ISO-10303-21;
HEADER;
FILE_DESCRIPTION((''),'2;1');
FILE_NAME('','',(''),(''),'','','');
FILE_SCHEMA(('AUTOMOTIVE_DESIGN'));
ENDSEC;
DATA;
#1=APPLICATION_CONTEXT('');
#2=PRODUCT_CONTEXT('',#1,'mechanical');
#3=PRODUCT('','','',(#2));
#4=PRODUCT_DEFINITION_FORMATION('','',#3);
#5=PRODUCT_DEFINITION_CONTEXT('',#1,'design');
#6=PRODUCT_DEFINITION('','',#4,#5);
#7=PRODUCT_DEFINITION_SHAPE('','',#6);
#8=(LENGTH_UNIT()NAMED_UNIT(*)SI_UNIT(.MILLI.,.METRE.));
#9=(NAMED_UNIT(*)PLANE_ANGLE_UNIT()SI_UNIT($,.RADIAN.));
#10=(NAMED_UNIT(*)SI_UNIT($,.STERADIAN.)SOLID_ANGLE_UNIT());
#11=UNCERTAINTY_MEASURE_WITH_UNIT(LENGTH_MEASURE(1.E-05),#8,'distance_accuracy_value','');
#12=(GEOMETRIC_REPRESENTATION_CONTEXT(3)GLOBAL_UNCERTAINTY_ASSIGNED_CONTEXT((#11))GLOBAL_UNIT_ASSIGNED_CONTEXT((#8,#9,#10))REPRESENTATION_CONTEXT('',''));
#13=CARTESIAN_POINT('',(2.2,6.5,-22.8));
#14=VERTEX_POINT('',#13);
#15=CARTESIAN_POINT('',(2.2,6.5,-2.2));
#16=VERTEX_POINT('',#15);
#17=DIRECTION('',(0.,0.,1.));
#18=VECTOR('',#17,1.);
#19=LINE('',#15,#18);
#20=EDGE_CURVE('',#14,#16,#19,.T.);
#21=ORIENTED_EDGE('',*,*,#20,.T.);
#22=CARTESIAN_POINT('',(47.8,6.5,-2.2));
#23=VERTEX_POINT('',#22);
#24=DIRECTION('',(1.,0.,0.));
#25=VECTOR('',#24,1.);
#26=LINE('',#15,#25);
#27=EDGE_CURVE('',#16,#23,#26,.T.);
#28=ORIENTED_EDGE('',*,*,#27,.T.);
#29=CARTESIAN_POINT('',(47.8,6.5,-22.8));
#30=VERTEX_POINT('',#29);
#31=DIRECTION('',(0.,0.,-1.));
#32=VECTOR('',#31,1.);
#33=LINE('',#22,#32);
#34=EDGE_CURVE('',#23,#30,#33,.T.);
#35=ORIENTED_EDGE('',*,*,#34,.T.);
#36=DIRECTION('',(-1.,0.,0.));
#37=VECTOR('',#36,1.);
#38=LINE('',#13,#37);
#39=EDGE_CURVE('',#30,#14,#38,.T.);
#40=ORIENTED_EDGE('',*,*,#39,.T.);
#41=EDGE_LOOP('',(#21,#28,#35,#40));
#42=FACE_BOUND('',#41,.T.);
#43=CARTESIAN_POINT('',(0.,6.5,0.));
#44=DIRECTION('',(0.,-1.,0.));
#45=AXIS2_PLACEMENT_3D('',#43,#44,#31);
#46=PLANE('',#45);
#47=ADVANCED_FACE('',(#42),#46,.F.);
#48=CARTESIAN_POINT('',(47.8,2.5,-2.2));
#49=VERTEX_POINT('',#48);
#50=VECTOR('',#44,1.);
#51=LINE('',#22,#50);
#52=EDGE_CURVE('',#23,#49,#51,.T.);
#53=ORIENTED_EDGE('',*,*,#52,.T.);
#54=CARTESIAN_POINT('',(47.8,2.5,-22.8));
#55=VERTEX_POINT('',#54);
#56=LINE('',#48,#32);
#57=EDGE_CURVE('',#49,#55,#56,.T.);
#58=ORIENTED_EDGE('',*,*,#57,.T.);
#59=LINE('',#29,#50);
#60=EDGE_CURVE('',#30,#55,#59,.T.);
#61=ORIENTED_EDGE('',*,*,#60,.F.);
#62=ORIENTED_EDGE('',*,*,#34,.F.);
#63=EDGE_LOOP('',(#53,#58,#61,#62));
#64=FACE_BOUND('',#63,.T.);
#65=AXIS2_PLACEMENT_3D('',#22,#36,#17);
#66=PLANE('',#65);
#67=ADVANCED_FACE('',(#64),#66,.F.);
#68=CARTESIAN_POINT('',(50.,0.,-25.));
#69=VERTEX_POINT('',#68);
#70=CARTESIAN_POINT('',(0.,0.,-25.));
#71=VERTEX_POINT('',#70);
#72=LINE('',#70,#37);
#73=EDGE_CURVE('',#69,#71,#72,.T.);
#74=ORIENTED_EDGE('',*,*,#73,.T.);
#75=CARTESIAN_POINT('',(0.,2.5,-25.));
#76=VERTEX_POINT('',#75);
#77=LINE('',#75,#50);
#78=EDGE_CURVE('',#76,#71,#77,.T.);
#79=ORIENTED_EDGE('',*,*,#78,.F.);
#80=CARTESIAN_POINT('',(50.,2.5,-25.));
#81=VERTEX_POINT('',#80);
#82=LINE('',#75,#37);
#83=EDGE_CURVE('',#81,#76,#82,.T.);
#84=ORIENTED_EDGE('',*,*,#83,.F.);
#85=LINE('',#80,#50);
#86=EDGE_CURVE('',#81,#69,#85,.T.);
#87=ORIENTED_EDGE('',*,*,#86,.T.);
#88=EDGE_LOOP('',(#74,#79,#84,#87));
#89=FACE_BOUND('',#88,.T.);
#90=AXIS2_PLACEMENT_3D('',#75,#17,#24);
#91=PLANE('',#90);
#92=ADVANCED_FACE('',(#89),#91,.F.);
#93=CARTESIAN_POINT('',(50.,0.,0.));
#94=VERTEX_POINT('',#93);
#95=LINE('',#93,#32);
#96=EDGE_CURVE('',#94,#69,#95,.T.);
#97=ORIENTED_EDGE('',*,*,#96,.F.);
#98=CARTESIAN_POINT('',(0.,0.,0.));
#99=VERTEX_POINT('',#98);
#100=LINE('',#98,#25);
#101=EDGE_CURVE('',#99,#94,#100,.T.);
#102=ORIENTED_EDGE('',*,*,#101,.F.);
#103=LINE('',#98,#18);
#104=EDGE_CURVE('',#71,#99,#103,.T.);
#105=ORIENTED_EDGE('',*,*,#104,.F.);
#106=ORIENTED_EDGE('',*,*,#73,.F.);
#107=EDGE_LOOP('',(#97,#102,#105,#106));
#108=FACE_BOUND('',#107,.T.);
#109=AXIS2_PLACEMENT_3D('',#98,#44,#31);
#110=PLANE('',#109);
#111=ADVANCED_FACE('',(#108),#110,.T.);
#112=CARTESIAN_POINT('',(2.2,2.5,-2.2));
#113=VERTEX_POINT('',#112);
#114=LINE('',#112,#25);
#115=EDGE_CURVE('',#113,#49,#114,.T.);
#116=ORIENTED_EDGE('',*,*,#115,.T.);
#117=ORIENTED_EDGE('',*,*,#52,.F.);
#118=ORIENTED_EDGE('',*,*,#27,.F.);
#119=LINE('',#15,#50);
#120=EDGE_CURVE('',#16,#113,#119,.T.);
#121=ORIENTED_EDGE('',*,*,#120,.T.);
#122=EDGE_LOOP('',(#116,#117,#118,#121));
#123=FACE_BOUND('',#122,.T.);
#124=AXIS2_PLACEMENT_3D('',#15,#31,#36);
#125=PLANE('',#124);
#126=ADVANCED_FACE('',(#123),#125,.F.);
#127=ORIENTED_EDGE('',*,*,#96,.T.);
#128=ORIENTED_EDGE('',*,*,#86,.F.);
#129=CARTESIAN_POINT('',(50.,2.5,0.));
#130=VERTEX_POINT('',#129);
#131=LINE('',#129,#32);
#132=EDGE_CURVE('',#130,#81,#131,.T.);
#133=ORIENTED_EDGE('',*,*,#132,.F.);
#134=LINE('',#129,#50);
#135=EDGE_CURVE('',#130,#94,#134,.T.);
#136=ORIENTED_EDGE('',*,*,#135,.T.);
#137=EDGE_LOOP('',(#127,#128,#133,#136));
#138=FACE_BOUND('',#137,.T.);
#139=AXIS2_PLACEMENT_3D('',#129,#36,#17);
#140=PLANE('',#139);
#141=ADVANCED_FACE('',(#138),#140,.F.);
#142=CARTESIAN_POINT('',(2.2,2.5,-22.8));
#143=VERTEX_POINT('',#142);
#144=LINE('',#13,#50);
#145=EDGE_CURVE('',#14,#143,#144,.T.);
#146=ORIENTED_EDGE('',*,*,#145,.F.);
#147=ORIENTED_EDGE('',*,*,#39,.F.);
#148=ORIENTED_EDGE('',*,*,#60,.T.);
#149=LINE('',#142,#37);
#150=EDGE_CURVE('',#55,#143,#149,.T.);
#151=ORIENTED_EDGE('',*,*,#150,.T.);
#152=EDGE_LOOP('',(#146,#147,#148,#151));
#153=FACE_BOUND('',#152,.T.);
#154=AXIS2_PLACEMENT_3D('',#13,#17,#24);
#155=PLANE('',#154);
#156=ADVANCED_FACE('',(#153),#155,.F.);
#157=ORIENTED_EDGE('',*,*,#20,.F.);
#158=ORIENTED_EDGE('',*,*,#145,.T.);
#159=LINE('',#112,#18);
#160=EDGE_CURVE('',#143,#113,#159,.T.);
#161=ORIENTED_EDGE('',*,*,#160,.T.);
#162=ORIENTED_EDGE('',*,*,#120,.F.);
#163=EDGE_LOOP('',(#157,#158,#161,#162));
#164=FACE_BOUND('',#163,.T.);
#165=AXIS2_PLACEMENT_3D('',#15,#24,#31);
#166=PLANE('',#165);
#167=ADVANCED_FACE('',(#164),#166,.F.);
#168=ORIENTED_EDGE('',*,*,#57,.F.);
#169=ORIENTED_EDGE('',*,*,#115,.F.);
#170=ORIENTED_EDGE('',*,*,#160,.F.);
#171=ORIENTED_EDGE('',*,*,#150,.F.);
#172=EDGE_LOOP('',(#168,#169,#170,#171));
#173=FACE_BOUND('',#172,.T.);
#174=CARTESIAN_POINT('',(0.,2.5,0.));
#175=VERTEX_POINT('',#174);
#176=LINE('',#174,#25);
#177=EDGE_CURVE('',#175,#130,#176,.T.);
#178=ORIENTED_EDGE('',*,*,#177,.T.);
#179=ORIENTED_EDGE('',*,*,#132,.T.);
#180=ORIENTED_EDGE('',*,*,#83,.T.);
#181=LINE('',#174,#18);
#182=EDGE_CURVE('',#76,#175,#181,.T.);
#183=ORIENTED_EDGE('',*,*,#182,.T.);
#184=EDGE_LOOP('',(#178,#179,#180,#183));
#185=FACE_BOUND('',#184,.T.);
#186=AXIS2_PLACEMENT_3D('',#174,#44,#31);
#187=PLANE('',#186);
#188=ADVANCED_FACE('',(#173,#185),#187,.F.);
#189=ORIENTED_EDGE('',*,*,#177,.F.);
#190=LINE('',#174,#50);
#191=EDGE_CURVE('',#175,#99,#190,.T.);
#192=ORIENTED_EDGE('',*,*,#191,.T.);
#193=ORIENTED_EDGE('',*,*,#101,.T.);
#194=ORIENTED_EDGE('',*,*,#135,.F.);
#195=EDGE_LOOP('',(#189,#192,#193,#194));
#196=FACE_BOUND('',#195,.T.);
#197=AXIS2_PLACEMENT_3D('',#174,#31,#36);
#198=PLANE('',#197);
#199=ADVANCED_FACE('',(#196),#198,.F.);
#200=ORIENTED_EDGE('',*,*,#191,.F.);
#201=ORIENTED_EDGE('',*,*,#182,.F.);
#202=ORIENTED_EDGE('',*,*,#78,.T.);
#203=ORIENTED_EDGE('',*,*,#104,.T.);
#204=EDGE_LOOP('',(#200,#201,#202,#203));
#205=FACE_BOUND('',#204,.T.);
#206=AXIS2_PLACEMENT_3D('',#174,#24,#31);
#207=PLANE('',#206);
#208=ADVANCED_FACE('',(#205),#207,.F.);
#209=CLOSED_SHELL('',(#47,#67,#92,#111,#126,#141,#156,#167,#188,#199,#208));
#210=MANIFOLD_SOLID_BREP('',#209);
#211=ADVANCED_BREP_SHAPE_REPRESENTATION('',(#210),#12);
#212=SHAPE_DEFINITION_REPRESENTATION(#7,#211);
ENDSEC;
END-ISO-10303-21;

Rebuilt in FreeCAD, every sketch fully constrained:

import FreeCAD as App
import Part
import Sketcher
from FreeCAD import Vector
Q = App.Units.Quantity


def add_polygon(sketch, points):
    """Adds a closed chain of lines whose ends are joined by coincident constraints."""
    first, n = sketch.GeometryCount, len(points)
    for a, b in zip(points, points[1:] + points[:1]):
        sketch.addGeometry(Part.LineSegment(App.Vector(*a, 0), App.Vector(*b, 0)), False)
    for i in range(n):
        sketch.addConstraint(Sketcher.Constraint("Coincident", first + i, 2, first + (i + 1) % n, 1))

doc = App.newDocument("Part")
params = doc.addObject("Spreadsheet::Sheet", "Params")
for row, (alias, value) in enumerate([
    ("sketch1_width", "50 mm"),
    ("sketch1_height", "25 mm"),
    ("pad1_length", "2.5 mm"),
    ("sketch2_width", "45.6 mm"),
    ("sketch2_height", "20.6 mm"),
    ("pad2_length", "4 mm"),
], start=1):
    params.set(f"A{row}", alias)
    params.set(f"B{row}", "=" + value)
    params.setAlias(f"B{row}", alias)

body = doc.addObject("PartDesign::Body", "Body")

sketch1 = body.newObject("Sketcher::SketchObject", "Sketch")
sketch1.AttachmentSupport = (doc.getObject("XZ_Plane"), [""])
sketch1.MapMode = "FlatFace"
add_polygon(sketch1, [(0, -25), (0, 0), (50, 0), (50, -25)])
sketch1.addConstraint([
    Sketcher.Constraint("Vertical", 0),
    Sketcher.Constraint("Horizontal", 1),
    Sketcher.Constraint("Vertical", 2),
    Sketcher.Constraint("Horizontal", 3),
    Sketcher.Constraint("Coincident", 0, 2, -1, 1),
    Sketcher.Constraint("DistanceX", 1, 1, 1, 2, Q("50 mm")),
    Sketcher.Constraint("DistanceY", 0, 1, 0, 2, Q("25 mm")),
])
sketch1.setExpression("Constraints[9]", "Params.sketch1_width")
sketch1.setExpression("Constraints[10]", "Params.sketch1_height")
pad1 = body.newObject("PartDesign::Pad", "Pad")
pad1.Profile = sketch1
pad1.setExpression("Length", "Params.pad1_length")
pad1.Reversed = True

sketch2 = body.newObject("Sketcher::SketchObject", "Sketch001")
sketch2.AttachmentSupport = (doc.getObject("XZ_Plane"), [""])
sketch2.MapMode = "FlatFace"
sketch2.AttachmentOffset = App.Placement(Vector(0, 0, -2.5), App.Rotation())
add_polygon(sketch2, [(2, -23), (2, -2), (48, -2), (48, -23)])
sketch2.addConstraint([
    Sketcher.Constraint("Vertical", 0),
    Sketcher.Constraint("Horizontal", 1),
    Sketcher.Constraint("Vertical", 2),
    Sketcher.Constraint("Horizontal", 3),
    Sketcher.Constraint("DistanceX", 1, 1, 1, 2, Q("45.6 mm")),
    Sketcher.Constraint("DistanceY", 0, 1, 0, 2, Q("20.6 mm")),
    Sketcher.Constraint("DistanceX", -1, 1, 0, 2, Q("2.2 mm")),
    Sketcher.Constraint("DistanceY", 0, 2, -1, 1, Q("2.2 mm")),
])
sketch2.setExpression("Constraints[8]", "Params.sketch2_width")
sketch2.setExpression("Constraints[9]", "Params.sketch2_height")
pad2 = body.newObject("PartDesign::Pad", "Pad001")
pad2.Profile = sketch2
pad2.setExpression("Length", "Params.pad2_length")
pad2.Reversed = True

doc.recompute()
